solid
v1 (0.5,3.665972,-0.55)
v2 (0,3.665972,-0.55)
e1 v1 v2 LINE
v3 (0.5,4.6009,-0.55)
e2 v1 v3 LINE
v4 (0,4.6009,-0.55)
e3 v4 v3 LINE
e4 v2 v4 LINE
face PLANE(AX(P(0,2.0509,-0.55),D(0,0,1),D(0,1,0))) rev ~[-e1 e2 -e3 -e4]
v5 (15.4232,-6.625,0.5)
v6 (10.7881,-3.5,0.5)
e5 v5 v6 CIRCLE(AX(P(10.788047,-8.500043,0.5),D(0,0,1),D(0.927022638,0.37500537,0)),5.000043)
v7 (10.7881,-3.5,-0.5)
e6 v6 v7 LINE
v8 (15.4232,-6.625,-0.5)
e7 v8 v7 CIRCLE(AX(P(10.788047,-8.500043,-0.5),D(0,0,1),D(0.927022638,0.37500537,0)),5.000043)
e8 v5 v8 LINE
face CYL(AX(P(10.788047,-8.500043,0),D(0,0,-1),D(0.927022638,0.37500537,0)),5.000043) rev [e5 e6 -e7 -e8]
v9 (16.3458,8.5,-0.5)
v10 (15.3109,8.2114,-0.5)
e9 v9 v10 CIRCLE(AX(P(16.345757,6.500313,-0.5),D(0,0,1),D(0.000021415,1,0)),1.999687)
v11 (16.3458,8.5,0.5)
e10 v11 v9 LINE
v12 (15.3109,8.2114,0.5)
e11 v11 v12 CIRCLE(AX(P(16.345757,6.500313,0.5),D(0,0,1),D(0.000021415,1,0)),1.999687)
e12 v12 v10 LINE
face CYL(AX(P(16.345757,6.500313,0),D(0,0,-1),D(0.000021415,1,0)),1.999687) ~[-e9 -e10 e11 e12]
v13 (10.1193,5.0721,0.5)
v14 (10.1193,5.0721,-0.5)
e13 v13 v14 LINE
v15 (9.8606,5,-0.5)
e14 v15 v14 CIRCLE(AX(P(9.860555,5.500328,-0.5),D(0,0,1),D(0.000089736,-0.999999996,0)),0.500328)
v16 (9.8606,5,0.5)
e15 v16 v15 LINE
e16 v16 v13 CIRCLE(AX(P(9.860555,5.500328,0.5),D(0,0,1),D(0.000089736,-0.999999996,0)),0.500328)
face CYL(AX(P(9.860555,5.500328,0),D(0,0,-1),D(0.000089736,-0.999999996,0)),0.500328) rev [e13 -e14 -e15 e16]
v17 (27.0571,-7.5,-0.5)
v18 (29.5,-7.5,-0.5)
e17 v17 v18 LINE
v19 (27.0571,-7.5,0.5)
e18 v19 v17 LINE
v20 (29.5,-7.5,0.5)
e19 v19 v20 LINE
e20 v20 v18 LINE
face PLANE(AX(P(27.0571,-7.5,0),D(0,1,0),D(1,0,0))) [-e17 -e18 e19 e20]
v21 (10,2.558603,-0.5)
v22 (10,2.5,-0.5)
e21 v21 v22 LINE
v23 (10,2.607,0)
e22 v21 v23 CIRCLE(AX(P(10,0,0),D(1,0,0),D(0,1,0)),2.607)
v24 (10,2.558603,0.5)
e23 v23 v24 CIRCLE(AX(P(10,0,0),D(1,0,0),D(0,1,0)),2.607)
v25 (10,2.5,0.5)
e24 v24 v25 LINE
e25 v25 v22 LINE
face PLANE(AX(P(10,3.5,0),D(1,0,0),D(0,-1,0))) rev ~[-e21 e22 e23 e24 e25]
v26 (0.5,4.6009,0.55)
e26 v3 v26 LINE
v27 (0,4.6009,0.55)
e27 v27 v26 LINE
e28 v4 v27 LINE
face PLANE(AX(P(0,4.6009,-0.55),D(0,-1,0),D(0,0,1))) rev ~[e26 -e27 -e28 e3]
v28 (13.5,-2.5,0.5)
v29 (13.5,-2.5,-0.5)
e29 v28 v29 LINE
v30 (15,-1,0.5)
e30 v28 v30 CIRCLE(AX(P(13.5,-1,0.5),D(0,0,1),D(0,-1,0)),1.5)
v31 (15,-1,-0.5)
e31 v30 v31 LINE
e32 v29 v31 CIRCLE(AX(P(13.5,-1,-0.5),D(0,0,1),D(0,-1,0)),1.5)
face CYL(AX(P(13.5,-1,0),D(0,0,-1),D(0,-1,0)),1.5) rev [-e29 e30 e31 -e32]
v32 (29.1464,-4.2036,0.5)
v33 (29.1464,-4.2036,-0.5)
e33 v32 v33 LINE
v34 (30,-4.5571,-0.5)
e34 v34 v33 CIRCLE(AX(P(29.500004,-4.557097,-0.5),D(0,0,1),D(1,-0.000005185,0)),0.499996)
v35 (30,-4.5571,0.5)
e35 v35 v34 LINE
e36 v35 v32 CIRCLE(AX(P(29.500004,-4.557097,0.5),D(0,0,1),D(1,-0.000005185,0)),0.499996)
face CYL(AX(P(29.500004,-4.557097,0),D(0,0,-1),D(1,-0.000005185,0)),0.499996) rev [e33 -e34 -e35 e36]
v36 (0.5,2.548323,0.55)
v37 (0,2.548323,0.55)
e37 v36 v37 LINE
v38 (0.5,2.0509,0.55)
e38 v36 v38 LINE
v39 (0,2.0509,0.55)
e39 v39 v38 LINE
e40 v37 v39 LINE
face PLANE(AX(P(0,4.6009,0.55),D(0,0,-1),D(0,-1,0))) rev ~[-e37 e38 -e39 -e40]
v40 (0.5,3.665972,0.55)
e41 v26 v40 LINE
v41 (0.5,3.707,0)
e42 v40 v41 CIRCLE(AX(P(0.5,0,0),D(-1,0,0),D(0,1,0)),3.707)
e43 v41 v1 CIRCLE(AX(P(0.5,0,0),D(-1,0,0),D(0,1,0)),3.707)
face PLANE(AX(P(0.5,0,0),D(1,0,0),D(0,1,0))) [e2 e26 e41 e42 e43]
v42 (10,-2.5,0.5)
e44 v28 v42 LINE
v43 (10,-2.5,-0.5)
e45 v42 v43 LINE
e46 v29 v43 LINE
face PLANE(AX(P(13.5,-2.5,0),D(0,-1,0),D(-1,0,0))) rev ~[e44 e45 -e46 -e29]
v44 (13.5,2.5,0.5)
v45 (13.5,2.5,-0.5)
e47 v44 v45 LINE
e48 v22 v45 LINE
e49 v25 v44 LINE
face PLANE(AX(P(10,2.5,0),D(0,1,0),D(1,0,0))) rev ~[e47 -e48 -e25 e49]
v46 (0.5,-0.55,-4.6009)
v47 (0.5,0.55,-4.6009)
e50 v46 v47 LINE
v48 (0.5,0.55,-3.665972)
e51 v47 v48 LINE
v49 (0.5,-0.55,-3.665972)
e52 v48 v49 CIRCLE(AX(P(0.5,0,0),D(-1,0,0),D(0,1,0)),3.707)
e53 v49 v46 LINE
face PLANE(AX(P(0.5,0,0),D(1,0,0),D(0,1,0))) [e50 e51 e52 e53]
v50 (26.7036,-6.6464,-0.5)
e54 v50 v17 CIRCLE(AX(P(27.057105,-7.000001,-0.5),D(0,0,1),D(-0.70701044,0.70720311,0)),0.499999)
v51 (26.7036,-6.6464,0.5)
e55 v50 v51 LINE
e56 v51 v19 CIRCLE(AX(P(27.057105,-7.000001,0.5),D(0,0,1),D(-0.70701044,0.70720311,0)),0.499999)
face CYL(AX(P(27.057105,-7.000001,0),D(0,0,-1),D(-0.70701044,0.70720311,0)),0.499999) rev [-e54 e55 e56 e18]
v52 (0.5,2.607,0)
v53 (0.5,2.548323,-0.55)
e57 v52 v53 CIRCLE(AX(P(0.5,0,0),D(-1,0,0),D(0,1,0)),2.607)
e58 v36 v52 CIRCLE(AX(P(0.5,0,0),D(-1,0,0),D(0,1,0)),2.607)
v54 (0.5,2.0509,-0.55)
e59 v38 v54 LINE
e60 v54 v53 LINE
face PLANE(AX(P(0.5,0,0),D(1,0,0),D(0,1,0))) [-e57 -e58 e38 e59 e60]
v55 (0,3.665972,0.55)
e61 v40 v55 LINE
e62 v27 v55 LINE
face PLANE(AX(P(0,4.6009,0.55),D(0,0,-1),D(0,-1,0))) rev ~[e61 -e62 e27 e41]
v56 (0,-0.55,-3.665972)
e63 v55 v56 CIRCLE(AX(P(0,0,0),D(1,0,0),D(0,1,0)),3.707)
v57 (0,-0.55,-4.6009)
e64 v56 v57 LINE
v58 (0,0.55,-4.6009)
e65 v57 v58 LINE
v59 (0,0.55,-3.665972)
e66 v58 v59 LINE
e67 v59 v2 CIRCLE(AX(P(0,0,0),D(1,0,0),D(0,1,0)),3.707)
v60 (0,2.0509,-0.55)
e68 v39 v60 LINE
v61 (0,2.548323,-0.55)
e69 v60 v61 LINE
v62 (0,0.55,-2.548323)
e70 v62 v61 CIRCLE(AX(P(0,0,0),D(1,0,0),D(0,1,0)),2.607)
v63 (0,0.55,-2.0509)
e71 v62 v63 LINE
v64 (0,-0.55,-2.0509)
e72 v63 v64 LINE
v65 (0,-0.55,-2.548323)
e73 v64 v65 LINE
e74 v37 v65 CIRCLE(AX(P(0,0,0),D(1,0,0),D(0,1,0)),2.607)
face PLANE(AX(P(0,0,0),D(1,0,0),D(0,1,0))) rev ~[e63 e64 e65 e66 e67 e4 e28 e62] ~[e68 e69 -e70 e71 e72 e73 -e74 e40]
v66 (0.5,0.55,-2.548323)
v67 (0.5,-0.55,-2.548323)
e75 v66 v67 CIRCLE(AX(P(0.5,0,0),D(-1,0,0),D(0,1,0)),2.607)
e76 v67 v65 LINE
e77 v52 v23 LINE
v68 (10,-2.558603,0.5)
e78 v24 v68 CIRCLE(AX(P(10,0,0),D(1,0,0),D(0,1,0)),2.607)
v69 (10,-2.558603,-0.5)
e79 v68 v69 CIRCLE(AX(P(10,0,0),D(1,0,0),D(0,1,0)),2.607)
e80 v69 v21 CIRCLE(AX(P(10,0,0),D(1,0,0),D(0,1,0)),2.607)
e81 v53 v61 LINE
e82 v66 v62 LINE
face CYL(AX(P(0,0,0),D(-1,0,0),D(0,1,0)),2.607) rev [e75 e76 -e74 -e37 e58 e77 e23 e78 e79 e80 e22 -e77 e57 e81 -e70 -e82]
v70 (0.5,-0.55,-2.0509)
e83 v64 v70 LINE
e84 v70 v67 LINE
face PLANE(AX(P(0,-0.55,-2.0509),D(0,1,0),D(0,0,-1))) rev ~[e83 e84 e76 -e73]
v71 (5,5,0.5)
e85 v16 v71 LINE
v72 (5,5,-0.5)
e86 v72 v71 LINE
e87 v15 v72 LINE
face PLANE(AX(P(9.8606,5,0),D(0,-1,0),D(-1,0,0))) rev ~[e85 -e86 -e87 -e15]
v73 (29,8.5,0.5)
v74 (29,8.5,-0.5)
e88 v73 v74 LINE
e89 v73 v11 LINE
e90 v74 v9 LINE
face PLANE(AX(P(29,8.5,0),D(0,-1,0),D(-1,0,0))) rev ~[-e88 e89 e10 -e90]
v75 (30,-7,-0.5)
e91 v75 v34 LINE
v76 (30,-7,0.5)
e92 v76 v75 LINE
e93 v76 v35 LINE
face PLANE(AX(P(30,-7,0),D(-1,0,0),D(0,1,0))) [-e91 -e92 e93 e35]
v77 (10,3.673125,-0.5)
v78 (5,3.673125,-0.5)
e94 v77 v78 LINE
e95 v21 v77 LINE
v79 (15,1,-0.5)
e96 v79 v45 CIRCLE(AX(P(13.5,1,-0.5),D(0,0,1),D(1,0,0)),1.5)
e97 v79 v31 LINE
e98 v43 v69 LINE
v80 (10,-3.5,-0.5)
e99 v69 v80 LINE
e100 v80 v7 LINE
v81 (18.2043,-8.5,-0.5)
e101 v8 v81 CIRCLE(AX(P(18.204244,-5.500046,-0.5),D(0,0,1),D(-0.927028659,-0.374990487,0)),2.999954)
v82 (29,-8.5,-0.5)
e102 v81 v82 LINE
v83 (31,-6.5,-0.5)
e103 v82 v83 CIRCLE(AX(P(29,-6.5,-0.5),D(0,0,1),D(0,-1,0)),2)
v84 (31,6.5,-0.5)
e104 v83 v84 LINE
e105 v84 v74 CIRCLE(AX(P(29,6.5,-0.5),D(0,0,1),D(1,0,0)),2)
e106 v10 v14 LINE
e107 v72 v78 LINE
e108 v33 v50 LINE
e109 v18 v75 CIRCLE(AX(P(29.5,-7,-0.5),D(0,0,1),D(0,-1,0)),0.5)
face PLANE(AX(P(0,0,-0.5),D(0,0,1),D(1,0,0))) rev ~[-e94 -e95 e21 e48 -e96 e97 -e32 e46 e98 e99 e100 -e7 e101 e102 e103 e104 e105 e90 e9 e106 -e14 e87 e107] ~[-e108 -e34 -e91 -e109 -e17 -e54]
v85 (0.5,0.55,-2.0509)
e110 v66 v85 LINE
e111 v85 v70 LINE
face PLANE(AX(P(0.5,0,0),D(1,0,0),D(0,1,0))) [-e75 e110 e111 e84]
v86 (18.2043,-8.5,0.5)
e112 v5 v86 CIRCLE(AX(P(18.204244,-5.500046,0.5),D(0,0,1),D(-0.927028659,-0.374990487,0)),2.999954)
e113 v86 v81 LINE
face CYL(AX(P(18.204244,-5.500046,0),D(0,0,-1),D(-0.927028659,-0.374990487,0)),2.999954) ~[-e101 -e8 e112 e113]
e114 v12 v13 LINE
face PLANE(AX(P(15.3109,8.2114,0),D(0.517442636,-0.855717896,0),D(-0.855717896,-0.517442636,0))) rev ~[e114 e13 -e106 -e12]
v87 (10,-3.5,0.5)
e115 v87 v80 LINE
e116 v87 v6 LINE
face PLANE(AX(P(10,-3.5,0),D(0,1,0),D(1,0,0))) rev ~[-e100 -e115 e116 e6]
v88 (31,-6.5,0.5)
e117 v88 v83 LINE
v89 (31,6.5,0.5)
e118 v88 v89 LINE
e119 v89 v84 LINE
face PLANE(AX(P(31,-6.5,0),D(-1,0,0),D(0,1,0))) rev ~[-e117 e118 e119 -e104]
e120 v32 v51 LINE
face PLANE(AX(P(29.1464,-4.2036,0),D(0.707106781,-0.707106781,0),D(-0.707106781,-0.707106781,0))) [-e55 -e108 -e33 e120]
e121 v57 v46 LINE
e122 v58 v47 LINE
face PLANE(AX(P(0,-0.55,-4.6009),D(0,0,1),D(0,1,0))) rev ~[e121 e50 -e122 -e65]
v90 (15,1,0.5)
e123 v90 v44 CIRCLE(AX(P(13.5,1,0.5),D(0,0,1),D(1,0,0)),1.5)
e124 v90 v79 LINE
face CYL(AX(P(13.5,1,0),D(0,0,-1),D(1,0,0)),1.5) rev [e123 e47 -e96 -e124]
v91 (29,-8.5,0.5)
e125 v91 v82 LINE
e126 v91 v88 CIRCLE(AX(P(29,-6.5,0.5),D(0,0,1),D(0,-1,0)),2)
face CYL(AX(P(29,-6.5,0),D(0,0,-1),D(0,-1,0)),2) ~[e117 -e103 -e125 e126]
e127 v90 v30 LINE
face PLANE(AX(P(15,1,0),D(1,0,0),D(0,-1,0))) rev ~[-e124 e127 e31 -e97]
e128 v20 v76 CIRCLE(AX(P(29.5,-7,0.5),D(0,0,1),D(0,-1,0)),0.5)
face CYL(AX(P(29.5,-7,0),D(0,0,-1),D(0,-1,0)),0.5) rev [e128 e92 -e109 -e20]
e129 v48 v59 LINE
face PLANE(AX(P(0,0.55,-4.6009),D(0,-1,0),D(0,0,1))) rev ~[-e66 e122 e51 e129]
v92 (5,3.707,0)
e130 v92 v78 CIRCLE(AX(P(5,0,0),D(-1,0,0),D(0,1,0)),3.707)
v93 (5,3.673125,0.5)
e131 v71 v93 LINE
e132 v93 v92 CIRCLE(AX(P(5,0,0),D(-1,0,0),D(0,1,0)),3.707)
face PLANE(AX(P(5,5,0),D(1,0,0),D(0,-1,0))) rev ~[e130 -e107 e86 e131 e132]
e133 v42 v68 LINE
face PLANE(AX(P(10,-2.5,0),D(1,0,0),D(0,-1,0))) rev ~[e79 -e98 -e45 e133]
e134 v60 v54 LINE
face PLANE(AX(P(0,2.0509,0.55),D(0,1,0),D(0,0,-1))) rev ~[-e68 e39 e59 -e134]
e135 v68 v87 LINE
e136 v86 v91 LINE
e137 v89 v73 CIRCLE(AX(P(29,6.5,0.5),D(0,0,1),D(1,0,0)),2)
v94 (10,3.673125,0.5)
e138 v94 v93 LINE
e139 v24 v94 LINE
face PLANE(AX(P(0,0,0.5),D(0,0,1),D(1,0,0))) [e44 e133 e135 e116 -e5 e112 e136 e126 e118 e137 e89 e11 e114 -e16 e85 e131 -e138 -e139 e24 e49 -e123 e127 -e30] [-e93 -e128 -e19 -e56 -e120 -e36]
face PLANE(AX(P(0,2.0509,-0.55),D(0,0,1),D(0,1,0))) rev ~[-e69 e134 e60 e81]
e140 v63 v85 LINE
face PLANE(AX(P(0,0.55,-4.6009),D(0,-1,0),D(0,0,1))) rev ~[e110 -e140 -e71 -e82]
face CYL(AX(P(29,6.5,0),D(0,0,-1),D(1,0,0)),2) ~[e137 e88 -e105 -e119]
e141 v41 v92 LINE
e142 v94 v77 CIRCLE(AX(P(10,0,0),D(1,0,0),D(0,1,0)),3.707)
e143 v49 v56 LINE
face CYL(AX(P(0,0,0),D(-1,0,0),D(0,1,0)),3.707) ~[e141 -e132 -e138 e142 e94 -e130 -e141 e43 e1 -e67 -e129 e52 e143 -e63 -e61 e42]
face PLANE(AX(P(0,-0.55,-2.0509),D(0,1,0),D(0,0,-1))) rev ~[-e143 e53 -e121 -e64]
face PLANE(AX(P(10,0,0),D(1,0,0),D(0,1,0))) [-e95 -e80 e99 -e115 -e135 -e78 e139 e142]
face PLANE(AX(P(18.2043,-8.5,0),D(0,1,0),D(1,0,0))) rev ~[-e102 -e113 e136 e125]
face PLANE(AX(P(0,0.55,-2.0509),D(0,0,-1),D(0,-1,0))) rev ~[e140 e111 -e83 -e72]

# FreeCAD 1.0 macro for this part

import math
import FreeCAD as App
import Part
import Sketcher

V = App.Vector
Q = App.Units.Quantity


def add_polygon(sketch, points):
    """Adds a closed chain of lines whose ends are joined by coincident constraints."""
    first, n = sketch.GeometryCount, len(points)
    for a, b in zip(points, points[1:] + points[:1]):
        sketch.addGeometry(Part.LineSegment(App.Vector(*a, 0), App.Vector(*b, 0)), False)
    for i in range(n):
        sketch.addConstraint(Sketcher.Constraint("Coincident", first + i, 2, first + (i + 1) % n, 1))

doc = App.newDocument("Part")
body = doc.addObject("PartDesign::Body", "Body")

# Sketch on YZ plane
sketch1 = body.newObject("Sketcher::SketchObject", "Sketch")
sketch1.AttachmentSupport = (doc.getObject("YZ_Plane"), [""])
sketch1.MapMode = "FlatFace"
sketch1.addGeometry([
    Part.Circle(V(0, 0, 0), V(0, 0, 1), 3.7),
    Part.Circle(V(0, 0, 0), V(0, 0, 1), 2.6),
], False)
sketch1.addConstraint([
    Sketcher.Constraint("Coincident", 0, 3, -1, 1),
    Sketcher.Constraint("Coincident", 1, 3, -1, 1),
    Sketcher.Constraint("Diameter", 0, Q("7.414 mm")),
    Sketcher.Constraint("Diameter", 1, Q("5.214 mm")),
])
pad1 = body.newObject("PartDesign::Pad", "Pad")
pad1.Profile = sketch1
pad1.Length = 10

# Sketch on YZ plane
sketch2 = body.newObject("Sketcher::SketchObject", "Sketch001")
sketch2.AttachmentSupport = (doc.getObject("YZ_Plane"), [""])
sketch2.MapMode = "FlatFace"
add_polygon(sketch2, [(4.6, 0.6), (2.1, 0.6), (2.1, -0.6), (4.6, -0.6)])  # lines 0-3
sketch2.addConstraint([
    Sketcher.Constraint("Horizontal", 0),
    Sketcher.Constraint("Vertical", 1),
    Sketcher.Constraint("Horizontal", 2),
    Sketcher.Constraint("Vertical", 3),
    Sketcher.Constraint("DistanceY", 1, 2, 1, 1, Q("1.1 mm")),
    Sketcher.Constraint("DistanceX", 0, 2, 0, 1, Q("2.55 mm")),
    Sketcher.Constraint("DistanceY", -1, 1, 0, 2, Q("0.55 mm")),
    Sketcher.Constraint("DistanceX", -1, 1, 0, 2, Q("2.051 mm")),
])
pad2 = body.newObject("PartDesign::Pad", "Pad001")
pad2.Profile = sketch2
pad2.Length = 0.5

# Sketch on YZ plane
sketch3 = body.newObject("Sketcher::SketchObject", "Sketch002")
sketch3.AttachmentSupport = (doc.getObject("YZ_Plane"), [""])
sketch3.MapMode = "FlatFace"
add_polygon(sketch3, [(0.6, -4.6), (0.6, -2.1), (-0.6, -2.1), (-0.6, -4.6)])  # lines 0-3
sketch3.addConstraint([
    Sketcher.Constraint("Vertical", 0),
    Sketcher.Constraint("Horizontal", 1),
    Sketcher.Constraint("Vertical", 2),
    Sketcher.Constraint("Horizontal", 3),
    Sketcher.Constraint("DistanceX", 1, 2, 1, 1, Q("1.1 mm")),
    Sketcher.Constraint("DistanceY", 0, 1, 0, 2, Q("2.55 mm")),
    Sketcher.Constraint("DistanceX", -1, 1, 0, 2, Q("0.55 mm")),
    Sketcher.Constraint("DistanceY", 0, 2, -1, 1, Q("2.051 mm")),
])
pad3 = body.newObject("PartDesign::Pad", "Pad002")
pad3.Profile = sketch3
pad3.Length = 0.5

# Sketch on XY plane
sketch4 = body.newObject("Sketcher::SketchObject", "Sketch003")
sketch4.AttachmentSupport = (doc.getObject("XY_Plane"), [""])
sketch4.MapMode = "FlatFace"
sketch4.addGeometry([
    Part.LineSegment(V(9.86, 5, 0), V(5, 5, 0)),  # 0
    Part.LineSegment(V(5, 5, 0), V(5, 3.5, 0)),  # 1
    Part.LineSegment(V(5, 3.5, 0), V(10, 3.5, 0)),  # 2
    Part.LineSegment(V(10, 3.5, 0), V(10, 2.5, 0)),  # 3
    Part.LineSegment(V(10, 2.5, 0), V(13.5, 2.5, 0)),  # 4
    Part.ArcOfCircle(Part.Circle(V(13.5, 1, 0), V(0, 0, 1), 1.5), math.radians(0), math.radians(90)),  # 5
    Part.LineSegment(V(15, 1, 0), V(15, -1, 0)),  # 6
    Part.ArcOfCircle(Part.Circle(V(13.5, -1, 0), V(0, 0, 1), 1.5), math.radians(-90), math.radians(0)),  # 7
    Part.LineSegment(V(13.5, -2.5, 0), V(10, -2.5, 0)),  # 8
    Part.LineSegment(V(10, -2.5, 0), V(10, -3.5, 0)),  # 9
    Part.LineSegment(V(10, -3.5, 0), V(10.79, -3.5, 0)),  # 10
    Part.ArcOfCircle(Part.Circle(V(10.79, -8.5, 0), V(0, 0, 1), 5), math.radians(22), math.radians(90)),  # 11
    Part.ArcOfCircle(Part.Circle(V(18.2, -5.5, 0), V(0, 0, 1), 3), math.radians(-158), math.radians(-90)),  # 12
    Part.LineSegment(V(18.2, -8.5, 0), V(29, -8.5, 0)),  # 13
    Part.ArcOfCircle(Part.Circle(V(29, -6.5, 0), V(0, 0, 1), 2), math.radians(-90), math.radians(0)),  # 14
    Part.LineSegment(V(31, -6.5, 0), V(31, 6.5, 0)),  # 15
    Part.ArcOfCircle(Part.Circle(V(29, 6.5, 0), V(0, 0, 1), 2), math.radians(0), math.radians(90)),  # 16
    Part.LineSegment(V(29, 8.5, 0), V(16.35, 8.5, 0)),  # 17
    Part.ArcOfCircle(Part.Circle(V(16.35, 6.5, 0), V(0, 0, 1), 2), math.radians(90), math.radians(121)),  # 18
    Part.LineSegment(V(15.31, 8.21, 0), V(10.12, 5.07, 0)),  # 19
    Part.ArcOfCircle(Part.Circle(V(9.86, 5.5, 0), V(0, 0, 1), 0.5), math.radians(-90), math.radians(-59)),  # 20
    Part.ArcOfCircle(Part.Circle(V(27.06, -7, 0), V(0, 0, 1), 0.5), math.radians(135), math.radians(270)),  # 21
    Part.LineSegment(V(26.7, -6.65, 0), V(29.15, -4.2, 0)),  # 22
    Part.ArcOfCircle(Part.Circle(V(29.5, -4.56, 0), V(0, 0, 1), 0.5), math.radians(0), math.radians(135)),  # 23
    Part.LineSegment(V(30, -4.56, 0), V(30, -7, 0)),  # 24
    Part.ArcOfCircle(Part.Circle(V(29.5, -7, 0), V(0, 0, 1), 0.5), math.radians(-90), math.radians(0)),  # 25
    Part.LineSegment(V(29.5, -7.5, 0), V(27.06, -7.5, 0)),  # 26
], False)
sketch4.addConstraint([
    Sketcher.Constraint("Coincident", 0, 2, 1, 1),
    Sketcher.Constraint("Coincident", 1, 2, 2, 1),
    Sketcher.Constraint("Coincident", 2, 2, 3, 1),
    Sketcher.Constraint("Coincident", 3, 2, 4, 1),
    Sketcher.Constraint("Tangent", 4, 2, 5, 2),
    Sketcher.Constraint("Tangent", 5, 1, 6, 1),
    Sketcher.Constraint("Tangent", 6, 2, 7, 2),
    Sketcher.Constraint("Tangent", 7, 1, 8, 1),
    Sketcher.Constraint("Coincident", 8, 2, 9, 1),
    Sketcher.Constraint("Coincident", 9, 2, 10, 1),
    Sketcher.Constraint("Tangent", 10, 2, 11, 2),
    Sketcher.Constraint("Tangent", 11, 1, 12, 1),
    Sketcher.Constraint("Tangent", 12, 2, 13, 1),
    Sketcher.Constraint("Tangent", 13, 2, 14, 1),
    Sketcher.Constraint("Tangent", 14, 2, 15, 1),
    Sketcher.Constraint("Tangent", 15, 2, 16, 1),
    Sketcher.Constraint("Tangent", 16, 2, 17, 1),
    Sketcher.Constraint("Tangent", 17, 2, 18, 1),
    Sketcher.Constraint("Tangent", 18, 2, 19, 1),
    Sketcher.Constraint("Tangent", 19, 2, 20, 2),
    Sketcher.Constraint("Tangent", 20, 1, 0, 1),
    Sketcher.Constraint("Tangent", 21, 1, 22, 1),
    Sketcher.Constraint("Tangent", 22, 2, 23, 2),
    Sketcher.Constraint("Tangent", 23, 1, 24, 1),
    Sketcher.Constraint("Tangent", 24, 2, 25, 2),
    Sketcher.Constraint("Tangent", 25, 1, 26, 1),
    Sketcher.Constraint("Tangent", 26, 2, 21, 2),
    Sketcher.Constraint("Horizontal", 0),
    Sketcher.Constraint("Vertical", 1),
    Sketcher.Constraint("Horizontal", 2),
    Sketcher.Constraint("Vertical", 3),
    Sketcher.Constraint("Horizontal", 4),
    Sketcher.Constraint("Vertical", 6),
    Sketcher.Constraint("Horizontal", 8),
    Sketcher.Constraint("Vertical", 9),
    Sketcher.Constraint("Horizontal", 10),
    Sketcher.Constraint("Horizontal", 13),
    Sketcher.Constraint("Vertical", 15),
    Sketcher.Constraint("Horizontal", 17),
    Sketcher.Constraint("Vertical", 24),
    Sketcher.Constraint("Horizontal", 26),
    Sketcher.Constraint("Equal", 5, 7),
    Sketcher.Constraint("Equal", 14, 16),
    Sketcher.Constraint("Equal", 16, 18),
    Sketcher.Constraint("Equal", 20, 21),
    Sketcher.Constraint("Equal", 21, 23),
    Sketcher.Constraint("Equal", 23, 25),
    Sketcher.Constraint("Symmetric", 3, 2, 8, 2, -1),
    Sketcher.Constraint("Horizontal", 11, 3, 12, 2),
    Sketcher.Constraint("Equal", 3, 9),
    Sketcher.Constraint("Equal", 26, 24),
    Sketcher.Constraint("Radius", 11, Q("5 mm")),
    Sketcher.Constraint("Radius", 12, Q("3 mm")),
    Sketcher.Constraint("Radius", 14, Q("2 mm")),
    Sketcher.Constraint("Radius", 5, Q("1.5 mm")),
    Sketcher.Constraint("Radius", 20, Q("0.5 mm")),
    Sketcher.Constraint("DistanceX", 2, 1, 2, 2, Q("5 mm")),
    Sketcher.Constraint("DistanceY", 3, 2, 3, 1, Q("1 mm")),
    Sketcher.Constraint("DistanceY", 6, 2, 6, 1, Q("2 mm")),
    Sketcher.Constraint("DistanceY", 15, 1, 15, 2, Q("13 mm")),
    Sketcher.Constraint("DistanceX", 4, 1, 4, 2, Q("3.5 mm")),
    Sketcher.Constraint("DistanceY", 1, 2, 1, 1, Q("1.5 mm")),
    Sketcher.Constraint("DistanceX", -1, 1, 14, 3, Q("29 mm")),
    Sketcher.Constraint("DistanceY", 21, 3, -1, 1, Q("7 mm")),
    Sketcher.Constraint("DistanceX", -1, 1, 0, 2, Q("5 mm")),
    Sketcher.Constraint("DistanceX", -1, 1, 23, 1, Q("30 mm")),
    Sketcher.Constraint("Angle", 19, Q("-148.8391 deg")),
    Sketcher.Constraint("DistanceX", 10, 1, 10, 2, Q("0.788 mm")),
    Sketcher.Constraint("DistanceX", 26, 2, 26, 1, Q("2.443 mm")),
    Sketcher.Constraint("DistanceX", 0, 2, 0, 1, Q("4.8606 mm")),
])
pad4 = body.newObject("PartDesign::Pad", "Pad003")
pad4.Profile = sketch4
pad4.Length = 1
pad4.Midplane = True

doc.recompute()
